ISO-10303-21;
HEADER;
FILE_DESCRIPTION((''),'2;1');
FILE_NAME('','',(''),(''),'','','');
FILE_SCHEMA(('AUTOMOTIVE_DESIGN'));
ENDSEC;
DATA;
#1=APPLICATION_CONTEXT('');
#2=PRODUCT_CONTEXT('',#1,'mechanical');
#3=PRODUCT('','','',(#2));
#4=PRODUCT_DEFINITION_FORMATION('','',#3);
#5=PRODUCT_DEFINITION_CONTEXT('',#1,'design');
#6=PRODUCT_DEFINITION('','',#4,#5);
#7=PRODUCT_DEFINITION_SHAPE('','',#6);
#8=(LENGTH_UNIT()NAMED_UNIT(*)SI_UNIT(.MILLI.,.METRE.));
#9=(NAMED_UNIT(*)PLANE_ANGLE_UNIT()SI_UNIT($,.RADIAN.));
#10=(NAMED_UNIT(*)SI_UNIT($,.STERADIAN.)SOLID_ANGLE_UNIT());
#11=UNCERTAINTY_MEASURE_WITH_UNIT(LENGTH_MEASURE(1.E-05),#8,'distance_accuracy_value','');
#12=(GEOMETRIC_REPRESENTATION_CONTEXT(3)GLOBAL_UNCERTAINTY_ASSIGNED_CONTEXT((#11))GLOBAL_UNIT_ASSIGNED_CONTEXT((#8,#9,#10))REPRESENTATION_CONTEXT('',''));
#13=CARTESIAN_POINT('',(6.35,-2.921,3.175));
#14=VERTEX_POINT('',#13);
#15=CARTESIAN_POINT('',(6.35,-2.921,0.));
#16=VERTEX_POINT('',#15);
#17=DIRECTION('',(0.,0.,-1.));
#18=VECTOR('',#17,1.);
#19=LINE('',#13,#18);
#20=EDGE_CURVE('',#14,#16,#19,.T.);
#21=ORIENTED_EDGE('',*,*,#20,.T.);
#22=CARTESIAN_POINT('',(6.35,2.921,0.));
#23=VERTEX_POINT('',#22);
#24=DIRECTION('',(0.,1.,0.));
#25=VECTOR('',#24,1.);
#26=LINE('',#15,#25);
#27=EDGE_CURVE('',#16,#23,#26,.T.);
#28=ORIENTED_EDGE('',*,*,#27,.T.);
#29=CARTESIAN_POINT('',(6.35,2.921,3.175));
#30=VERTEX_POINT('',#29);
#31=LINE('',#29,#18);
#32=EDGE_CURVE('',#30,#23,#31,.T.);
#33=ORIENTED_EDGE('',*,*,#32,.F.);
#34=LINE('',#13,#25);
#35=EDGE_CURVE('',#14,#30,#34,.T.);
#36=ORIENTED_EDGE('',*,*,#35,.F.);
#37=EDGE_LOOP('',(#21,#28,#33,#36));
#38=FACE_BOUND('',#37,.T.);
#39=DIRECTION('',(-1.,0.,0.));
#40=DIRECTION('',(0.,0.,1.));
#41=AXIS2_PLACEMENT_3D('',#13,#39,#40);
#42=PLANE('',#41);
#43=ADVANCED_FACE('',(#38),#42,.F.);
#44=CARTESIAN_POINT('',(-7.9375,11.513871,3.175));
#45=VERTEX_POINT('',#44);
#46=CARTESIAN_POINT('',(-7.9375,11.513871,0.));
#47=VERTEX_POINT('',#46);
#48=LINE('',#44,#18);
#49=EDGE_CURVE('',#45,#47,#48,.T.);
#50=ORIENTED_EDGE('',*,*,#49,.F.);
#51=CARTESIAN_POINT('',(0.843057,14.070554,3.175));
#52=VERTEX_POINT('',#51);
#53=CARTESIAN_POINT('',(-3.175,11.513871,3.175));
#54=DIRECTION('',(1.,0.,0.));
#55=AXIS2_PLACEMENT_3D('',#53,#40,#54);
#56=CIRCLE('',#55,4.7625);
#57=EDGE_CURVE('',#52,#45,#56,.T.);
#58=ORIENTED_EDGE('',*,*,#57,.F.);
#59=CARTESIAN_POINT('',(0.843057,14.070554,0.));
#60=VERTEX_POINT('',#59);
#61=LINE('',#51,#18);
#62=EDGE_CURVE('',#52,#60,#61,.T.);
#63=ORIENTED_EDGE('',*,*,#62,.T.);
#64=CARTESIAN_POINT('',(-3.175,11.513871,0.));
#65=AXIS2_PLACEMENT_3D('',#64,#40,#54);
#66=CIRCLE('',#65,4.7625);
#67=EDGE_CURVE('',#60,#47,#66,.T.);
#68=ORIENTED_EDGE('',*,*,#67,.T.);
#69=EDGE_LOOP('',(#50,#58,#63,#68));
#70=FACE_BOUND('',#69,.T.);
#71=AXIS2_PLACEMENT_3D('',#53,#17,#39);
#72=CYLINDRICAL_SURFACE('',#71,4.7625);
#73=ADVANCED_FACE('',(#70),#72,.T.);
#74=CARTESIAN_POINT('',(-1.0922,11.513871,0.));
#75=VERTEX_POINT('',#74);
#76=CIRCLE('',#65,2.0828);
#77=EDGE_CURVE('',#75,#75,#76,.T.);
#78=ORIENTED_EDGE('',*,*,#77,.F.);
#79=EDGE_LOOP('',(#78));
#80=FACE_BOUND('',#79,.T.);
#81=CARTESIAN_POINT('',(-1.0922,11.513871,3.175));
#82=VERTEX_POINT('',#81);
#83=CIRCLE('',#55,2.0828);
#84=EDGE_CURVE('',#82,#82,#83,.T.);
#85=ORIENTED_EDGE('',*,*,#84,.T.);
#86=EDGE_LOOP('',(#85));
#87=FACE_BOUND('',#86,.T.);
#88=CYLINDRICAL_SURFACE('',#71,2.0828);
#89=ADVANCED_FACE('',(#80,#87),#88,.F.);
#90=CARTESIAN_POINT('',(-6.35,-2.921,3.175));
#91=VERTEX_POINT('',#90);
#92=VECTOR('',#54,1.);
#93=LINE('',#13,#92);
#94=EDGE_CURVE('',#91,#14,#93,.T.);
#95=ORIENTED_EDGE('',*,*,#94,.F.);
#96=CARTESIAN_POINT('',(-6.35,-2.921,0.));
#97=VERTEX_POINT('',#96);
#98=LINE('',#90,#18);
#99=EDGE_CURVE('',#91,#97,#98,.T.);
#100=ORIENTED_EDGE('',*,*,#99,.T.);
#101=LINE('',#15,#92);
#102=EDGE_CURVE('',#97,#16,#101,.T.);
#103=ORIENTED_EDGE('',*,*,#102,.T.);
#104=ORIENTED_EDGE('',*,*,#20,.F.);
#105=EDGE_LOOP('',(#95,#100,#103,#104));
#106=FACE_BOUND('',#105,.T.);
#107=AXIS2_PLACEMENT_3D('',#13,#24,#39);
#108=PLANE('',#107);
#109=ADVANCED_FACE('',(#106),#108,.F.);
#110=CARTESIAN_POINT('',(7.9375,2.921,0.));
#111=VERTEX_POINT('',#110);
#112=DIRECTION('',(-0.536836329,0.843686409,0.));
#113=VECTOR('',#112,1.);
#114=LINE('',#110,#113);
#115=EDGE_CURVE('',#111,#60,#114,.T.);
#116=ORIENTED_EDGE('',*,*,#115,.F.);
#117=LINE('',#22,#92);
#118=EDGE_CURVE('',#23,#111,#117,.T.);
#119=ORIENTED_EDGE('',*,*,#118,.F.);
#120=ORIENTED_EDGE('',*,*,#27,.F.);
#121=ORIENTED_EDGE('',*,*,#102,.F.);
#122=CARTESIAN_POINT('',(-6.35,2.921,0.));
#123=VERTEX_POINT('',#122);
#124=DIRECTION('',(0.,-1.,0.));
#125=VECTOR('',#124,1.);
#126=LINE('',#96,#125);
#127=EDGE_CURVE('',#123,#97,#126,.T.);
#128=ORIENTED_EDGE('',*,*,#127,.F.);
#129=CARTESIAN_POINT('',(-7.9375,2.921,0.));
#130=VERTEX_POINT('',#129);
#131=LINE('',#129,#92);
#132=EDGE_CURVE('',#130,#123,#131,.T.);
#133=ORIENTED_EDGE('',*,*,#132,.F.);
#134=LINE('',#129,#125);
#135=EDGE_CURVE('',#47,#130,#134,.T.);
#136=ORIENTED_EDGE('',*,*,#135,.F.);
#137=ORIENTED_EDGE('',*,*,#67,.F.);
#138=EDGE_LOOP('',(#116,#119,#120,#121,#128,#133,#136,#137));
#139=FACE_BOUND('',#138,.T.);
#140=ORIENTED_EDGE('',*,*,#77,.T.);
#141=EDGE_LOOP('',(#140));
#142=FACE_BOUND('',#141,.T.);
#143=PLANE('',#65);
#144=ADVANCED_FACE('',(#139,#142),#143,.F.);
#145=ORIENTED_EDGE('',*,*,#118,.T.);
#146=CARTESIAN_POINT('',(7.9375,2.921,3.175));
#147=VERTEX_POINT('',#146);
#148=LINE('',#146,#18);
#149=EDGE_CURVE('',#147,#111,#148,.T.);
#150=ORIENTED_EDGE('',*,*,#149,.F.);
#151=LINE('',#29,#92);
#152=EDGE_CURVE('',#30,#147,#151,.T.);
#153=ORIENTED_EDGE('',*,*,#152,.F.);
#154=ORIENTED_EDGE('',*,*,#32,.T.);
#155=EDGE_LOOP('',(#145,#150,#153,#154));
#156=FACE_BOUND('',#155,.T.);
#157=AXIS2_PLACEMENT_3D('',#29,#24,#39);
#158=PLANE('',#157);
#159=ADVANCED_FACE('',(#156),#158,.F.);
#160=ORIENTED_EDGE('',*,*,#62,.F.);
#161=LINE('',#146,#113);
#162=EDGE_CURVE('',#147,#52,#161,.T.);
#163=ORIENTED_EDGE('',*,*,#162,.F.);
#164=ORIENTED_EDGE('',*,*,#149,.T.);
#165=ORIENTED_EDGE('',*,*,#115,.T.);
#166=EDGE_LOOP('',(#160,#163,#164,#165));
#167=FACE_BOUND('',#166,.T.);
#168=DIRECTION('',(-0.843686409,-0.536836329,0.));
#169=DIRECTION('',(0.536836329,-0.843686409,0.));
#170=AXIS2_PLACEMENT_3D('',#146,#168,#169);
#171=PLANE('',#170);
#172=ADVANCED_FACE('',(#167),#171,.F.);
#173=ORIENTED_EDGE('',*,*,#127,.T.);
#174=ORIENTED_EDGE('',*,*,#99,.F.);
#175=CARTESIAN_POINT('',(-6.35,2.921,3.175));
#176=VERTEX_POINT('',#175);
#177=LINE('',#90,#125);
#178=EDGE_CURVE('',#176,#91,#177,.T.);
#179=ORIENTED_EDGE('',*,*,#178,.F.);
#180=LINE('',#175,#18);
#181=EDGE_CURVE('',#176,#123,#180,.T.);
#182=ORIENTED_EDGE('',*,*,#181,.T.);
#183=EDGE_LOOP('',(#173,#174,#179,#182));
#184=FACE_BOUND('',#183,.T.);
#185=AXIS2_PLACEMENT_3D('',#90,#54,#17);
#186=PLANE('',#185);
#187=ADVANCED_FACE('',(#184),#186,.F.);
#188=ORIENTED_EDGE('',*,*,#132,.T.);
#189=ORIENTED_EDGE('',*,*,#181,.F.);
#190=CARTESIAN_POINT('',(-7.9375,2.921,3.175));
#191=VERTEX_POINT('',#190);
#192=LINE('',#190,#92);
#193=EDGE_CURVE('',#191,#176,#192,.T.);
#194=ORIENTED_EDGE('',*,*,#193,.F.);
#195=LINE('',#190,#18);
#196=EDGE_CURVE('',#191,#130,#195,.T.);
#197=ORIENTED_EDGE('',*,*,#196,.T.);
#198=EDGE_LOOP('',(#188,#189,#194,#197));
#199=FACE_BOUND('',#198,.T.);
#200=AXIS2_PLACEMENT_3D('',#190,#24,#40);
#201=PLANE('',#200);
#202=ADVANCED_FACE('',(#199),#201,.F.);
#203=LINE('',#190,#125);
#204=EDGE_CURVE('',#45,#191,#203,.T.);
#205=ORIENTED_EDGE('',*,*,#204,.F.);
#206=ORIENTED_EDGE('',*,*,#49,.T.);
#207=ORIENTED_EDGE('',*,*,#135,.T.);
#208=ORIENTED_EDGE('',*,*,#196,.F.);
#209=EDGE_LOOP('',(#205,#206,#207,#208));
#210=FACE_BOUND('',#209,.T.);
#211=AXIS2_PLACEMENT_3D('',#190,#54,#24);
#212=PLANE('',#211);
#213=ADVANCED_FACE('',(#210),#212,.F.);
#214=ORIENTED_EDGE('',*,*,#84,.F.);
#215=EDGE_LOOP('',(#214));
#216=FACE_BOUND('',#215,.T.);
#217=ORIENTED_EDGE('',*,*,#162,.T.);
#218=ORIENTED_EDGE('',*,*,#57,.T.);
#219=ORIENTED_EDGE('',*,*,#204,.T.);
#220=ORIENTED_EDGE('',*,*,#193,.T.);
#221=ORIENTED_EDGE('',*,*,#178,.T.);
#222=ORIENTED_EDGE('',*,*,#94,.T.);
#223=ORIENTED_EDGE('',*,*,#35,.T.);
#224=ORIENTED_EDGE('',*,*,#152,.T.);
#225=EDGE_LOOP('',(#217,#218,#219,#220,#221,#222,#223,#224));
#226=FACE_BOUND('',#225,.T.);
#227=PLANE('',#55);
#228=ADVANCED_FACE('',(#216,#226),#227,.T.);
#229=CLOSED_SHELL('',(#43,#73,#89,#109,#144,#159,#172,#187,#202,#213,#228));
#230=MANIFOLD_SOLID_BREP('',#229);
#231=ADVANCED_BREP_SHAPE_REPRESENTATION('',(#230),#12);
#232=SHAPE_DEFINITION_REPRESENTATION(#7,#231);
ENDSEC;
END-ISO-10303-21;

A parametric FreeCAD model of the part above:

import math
import FreeCAD as App
import Part
import Sketcher
from FreeCAD import Vector
Q = App.Units.Quantity

doc = App.newDocument("Part")
params = doc.addObject("Spreadsheet::Sheet", "Params")
for row, (alias, value) in enumerate([
    ("sketch1_diameter", "0.164 in"),
    ("sketch1_width", "0.5 in"),
    ("sketch1_radius", "0.1875 in"),
    ("sketch1_height", "0.23 in"),
    ("sketch1_width2", "0.0625 in"),
    ("pad1_length", "0.125 in"),
], start=1):
    params.set(f"A{row}", alias)
    params.set(f"B{row}", "=" + value)
    params.setAlias(f"B{row}", alias)

body = doc.addObject("PartDesign::Body", "Body")

# Sketch on XY plane
sketch1 = doc.addObject("Sketcher::SketchObject", "Sketch")
body.addObject(sketch1)
sketch1.AttachmentSupport = (doc.XY_Plane, [""])
sketch1.MapMode = "FlatFace"
sketch1.addGeometry([
    Part.LineSegment(Vector(7.9375, 2.921, 0), Vector(0.843057, 14.070554, 0)),  # 0
    Part.ArcOfCircle(Part.Circle(Vector(-3.175, 11.513871, 0), Vector(0, 0, 1), 4.7625), math.radians(32.468533), math.radians(180)),  # 1
    Part.LineSegment(Vector(-7.9375, 11.513871, 0), Vector(-7.9375, 2.921, 0)),  # 2
    Part.LineSegment(Vector(-7.9375, 2.921, 0), Vector(-6.35, 2.921, 0)),  # 3
    Part.LineSegment(Vector(-6.35, 2.921, 0), Vector(-6.35, -2.921, 0)),  # 4
    Part.LineSegment(Vector(-6.35, -2.921, 0), Vector(6.35, -2.921, 0)),  # 5
    Part.LineSegment(Vector(6.35, -2.921, 0), Vector(6.35, 2.921, 0)),  # 6
    Part.LineSegment(Vector(6.35, 2.921, 0), Vector(7.9375, 2.921, 0)),  # 7
    Part.Circle(Vector(-3.175, 11.513871, 0), Vector(0, 0, 1), 2.0828),  # 8
], False)
sketch1.addConstraint([
    Sketcher.Constraint("Tangent", 0, 2, 1, 1),
    Sketcher.Constraint("Tangent", 1, 2, 2, 1),
    Sketcher.Constraint("Coincident", 2, 2, 3, 1),
    Sketcher.Constraint("Coincident", 3, 2, 4, 1),
    Sketcher.Constraint("Coincident", 4, 2, 5, 1),
    Sketcher.Constraint("Coincident", 5, 2, 6, 1),
    Sketcher.Constraint("Coincident", 6, 2, 7, 1),
    Sketcher.Constraint("Coincident", 7, 2, 0, 1),
    Sketcher.Constraint("Vertical", 2),
    Sketcher.Constraint("Horizontal", 3),
    Sketcher.Constraint("Vertical", 4),
    Sketcher.Constraint("Horizontal", 5),
    Sketcher.Constraint("Vertical", 6),
    Sketcher.Constraint("Horizontal", 7),
    Sketcher.Constraint("Coincident", 8, 3, 1, 3),
    Sketcher.Constraint("Symmetric", 3, 2, 5, 2, -1, 1),
    Sketcher.Constraint("Symmetric", 2, 2, 7, 2, -2),
    Sketcher.Constraint("Diameter", 8, Q("0.164 in")),
    Sketcher.Constraint("DistanceX", 5, 1, 5, 2, Q("0.5 in")),
    Sketcher.Constraint("Radius", 1, Q("0.1875 in")),
    Sketcher.Constraint("DistanceY", 4, 2, 4, 1, Q("0.23 in")),
    Sketcher.Constraint("DistanceX", 3, 1, 3, 2, Q("0.0625 in")),
    Sketcher.Constraint("DistanceY", 2, 2, 2, 1, 8.592871),
])
sketch1.setExpression("Constraints[17]", "Params.sketch1_diameter")
sketch1.setExpression("Constraints[18]", "Params.sketch1_width")
sketch1.setExpression("Constraints[19]", "Params.sketch1_radius")
sketch1.setExpression("Constraints[20]", "Params.sketch1_height")
sketch1.setExpression("Constraints[21]", "Params.sketch1_width2")
pad1 = doc.addObject("PartDesign::Pad", "Pad")
body.addObject(pad1)
pad1.Profile = sketch1
pad1.setExpression("Length", "Params.pad1_length")

doc.recompute()
